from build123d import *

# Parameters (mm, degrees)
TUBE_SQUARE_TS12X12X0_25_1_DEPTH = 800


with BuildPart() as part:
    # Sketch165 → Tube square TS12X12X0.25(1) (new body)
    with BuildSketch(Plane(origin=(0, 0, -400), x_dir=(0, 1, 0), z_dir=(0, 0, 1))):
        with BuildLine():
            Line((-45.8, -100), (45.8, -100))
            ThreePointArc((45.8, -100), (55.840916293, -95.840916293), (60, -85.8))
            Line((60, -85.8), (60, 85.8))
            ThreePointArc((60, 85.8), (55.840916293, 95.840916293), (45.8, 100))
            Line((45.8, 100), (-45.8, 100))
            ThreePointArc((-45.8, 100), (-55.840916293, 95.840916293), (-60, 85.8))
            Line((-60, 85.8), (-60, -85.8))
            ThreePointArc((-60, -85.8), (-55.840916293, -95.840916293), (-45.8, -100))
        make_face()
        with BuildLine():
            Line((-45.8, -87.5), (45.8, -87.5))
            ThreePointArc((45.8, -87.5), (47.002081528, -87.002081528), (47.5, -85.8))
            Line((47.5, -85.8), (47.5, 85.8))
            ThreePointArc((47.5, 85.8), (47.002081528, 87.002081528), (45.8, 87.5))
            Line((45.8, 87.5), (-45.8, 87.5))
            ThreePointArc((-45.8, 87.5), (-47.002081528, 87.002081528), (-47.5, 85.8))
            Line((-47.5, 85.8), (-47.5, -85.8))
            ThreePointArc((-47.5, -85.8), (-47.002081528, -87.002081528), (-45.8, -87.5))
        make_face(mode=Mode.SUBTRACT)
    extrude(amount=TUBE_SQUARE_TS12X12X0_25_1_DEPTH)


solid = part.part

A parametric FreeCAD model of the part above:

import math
import FreeCAD as App
import Part
import Sketcher
Q = App.Units.Quantity

doc = App.newDocument("Part")
body = doc.addObject("PartDesign::Body", "Body")

# Sketch on XY plane
sketch1 = body.newObject("Sketcher::SketchObject", "Sketch")
sketch1.AttachmentSupport = (doc.getObject("XY_Plane"), [""])
sketch1.MapMode = "FlatFace"
sketch1.AttachmentOffset = App.Placement(App.Vector(0, 0, -400), App.Rotation())
sketch1.addGeometry(Part.LineSegment(App.Vector(100, -45.8, 0), App.Vector(100, 45.8, 0)), False)
sketch1.addGeometry(Part.ArcOfCircle(Part.Circle(App.Vector(85.8, 45.8, 0), App.Vector(0, 0, 1), 14.2), math.radians(0), math.radians(90)), False)
sketch1.addGeometry(Part.LineSegment(App.Vector(85.8, 60, 0), App.Vector(-85.8, 60, 0)), False)
sketch1.addGeometry(Part.ArcOfCircle(Part.Circle(App.Vector(-85.8, 45.8, 0), App.Vector(0, 0, 1), 14.2), math.radians(90), math.radians(180)), False)
sketch1.addGeometry(Part.LineSegment(App.Vector(-100, 45.8, 0), App.Vector(-100, -45.8, 0)), False)
sketch1.addGeometry(Part.ArcOfCircle(Part.Circle(App.Vector(-85.8, -45.8, 0), App.Vector(0, 0, 1), 14.2), math.radians(180), math.radians(270)), False)
sketch1.addGeometry(Part.LineSegment(App.Vector(-85.8, -60, 0), App.Vector(85.8, -60, 0)), False)
sketch1.addGeometry(Part.ArcOfCircle(Part.Circle(App.Vector(85.8, -45.8, 0), App.Vector(0, 0, 1), 14.2), math.radians(-90), math.radians(0)), False)
sketch1.addGeometry(Part.LineSegment(App.Vector(87.5, 45.8, 0), App.Vector(87.5, -45.8, 0)), False)
sketch1.addGeometry(Part.ArcOfCircle(Part.Circle(App.Vector(85.8, -45.8, 0), App.Vector(0, 0, 1), 1.7), math.radians(-90), math.radians(0)), False)
sketch1.addGeometry(Part.LineSegment(App.Vector(85.8, -47.5, 0), App.Vector(-85.8, -47.5, 0)), False)
sketch1.addGeometry(Part.ArcOfCircle(Part.Circle(App.Vector(-85.8, -45.8, 0), App.Vector(0, 0, 1), 1.7), math.radians(180), math.radians(270)), False)
sketch1.addGeometry(Part.LineSegment(App.Vector(-87.5, -45.8, 0), App.Vector(-87.5, 45.8, 0)), False)
sketch1.addGeometry(Part.ArcOfCircle(Part.Circle(App.Vector(-85.8, 45.8, 0), App.Vector(0, 0, 1), 1.7), math.radians(90), math.radians(180)), False)
sketch1.addGeometry(Part.LineSegment(App.Vector(-85.8, 47.5, 0), App.Vector(85.8, 47.5, 0)), False)
sketch1.addGeometry(Part.ArcOfCircle(Part.Circle(App.Vector(85.8, 45.8, 0), App.Vector(0, 0, 1), 1.7), math.radians(0), math.radians(90)), False)
sketch1.addConstraint(Sketcher.Constraint("Tangent", 0, 2, 1, 1))
sketch1.addConstraint(Sketcher.Constraint("Tangent", 1, 2, 2, 1))
sketch1.addConstraint(Sketcher.Constraint("Tangent", 2, 2, 3, 1))
sketch1.addConstraint(Sketcher.Constraint("Tangent", 3, 2, 4, 1))
sketch1.addConstraint(Sketcher.Constraint("Tangent", 4, 2, 5, 1))
sketch1.addConstraint(Sketcher.Constraint("Tangent", 5, 2, 6, 1))
sketch1.addConstraint(Sketcher.Constraint("Tangent", 6, 2, 7, 1))
sketch1.addConstraint(Sketcher.Constraint("Tangent", 7, 2, 0, 1))
sketch1.addConstraint(Sketcher.Constraint("Tangent", 8, 2, 9, 2))
sketch1.addConstraint(Sketcher.Constraint("Tangent", 9, 1, 10, 1))
sketch1.addConstraint(Sketcher.Constraint("Tangent", 10, 2, 11, 2))
sketch1.addConstraint(Sketcher.Constraint("Tangent", 11, 1, 12, 1))
sketch1.addConstraint(Sketcher.Constraint("Tangent", 12, 2, 13, 2))
sketch1.addConstraint(Sketcher.Constraint("Tangent", 13, 1, 14, 1))
sketch1.addConstraint(Sketcher.Constraint("Tangent", 14, 2, 15, 2))
sketch1.addConstraint(Sketcher.Constraint("Tangent", 15, 1, 8, 1))
sketch1.addConstraint(Sketcher.Constraint("Vertical", 0))
sketch1.addConstraint(Sketcher.Constraint("Horizontal", 2))
sketch1.addConstraint(Sketcher.Constraint("Vertical", 4))
sketch1.addConstraint(Sketcher.Constraint("Horizontal", 6))
sketch1.addConstraint(Sketcher.Constraint("Vertical", 8))
sketch1.addConstraint(Sketcher.Constraint("Horizontal", 10))
sketch1.addConstraint(Sketcher.Constraint("Vertical", 12))
sketch1.addConstraint(Sketcher.Constraint("Horizontal", 14))
sketch1.addConstraint(Sketcher.Constraint("Coincident", 9, 3, 7, 3))
sketch1.addConstraint(Sketcher.Constraint("Coincident", 11, 3, 5, 3))
sketch1.addConstraint(Sketcher.Constraint("Coincident", 13, 3, 3, 3))
sketch1.addConstraint(Sketcher.Constraint("Equal", 1, 3))
sketch1.addConstraint(Sketcher.Constraint("Equal", 3, 5))
sketch1.addConstraint(Sketcher.Constraint("Equal", 5, 7))
sketch1.addConstraint(Sketcher.Constraint("Equal", 13, 15))
sketch1.addConstraint(Sketcher.Constraint("Symmetric", 1, 3, 5, 3, -1, 1))
sketch1.addConstraint(Sketcher.Constraint("Radius", 1, Q("14.2 mm")))
sketch1.addConstraint(Sketcher.Constraint("Radius", 9, Q("1.7 mm")))
sketch1.addConstraint(Sketcher.Constraint("DistanceX", 2, 2, 2, 1, Q("171.6 mm")))
sketch1.addConstraint(Sketcher.Constraint("DistanceY", 0, 1, 0, 2, Q("91.6 mm")))
pad1 = body.newObject("PartDesign::Pad", "Pad")
pad1.Profile = sketch1
pad1.Length = 800

doc.recompute()
